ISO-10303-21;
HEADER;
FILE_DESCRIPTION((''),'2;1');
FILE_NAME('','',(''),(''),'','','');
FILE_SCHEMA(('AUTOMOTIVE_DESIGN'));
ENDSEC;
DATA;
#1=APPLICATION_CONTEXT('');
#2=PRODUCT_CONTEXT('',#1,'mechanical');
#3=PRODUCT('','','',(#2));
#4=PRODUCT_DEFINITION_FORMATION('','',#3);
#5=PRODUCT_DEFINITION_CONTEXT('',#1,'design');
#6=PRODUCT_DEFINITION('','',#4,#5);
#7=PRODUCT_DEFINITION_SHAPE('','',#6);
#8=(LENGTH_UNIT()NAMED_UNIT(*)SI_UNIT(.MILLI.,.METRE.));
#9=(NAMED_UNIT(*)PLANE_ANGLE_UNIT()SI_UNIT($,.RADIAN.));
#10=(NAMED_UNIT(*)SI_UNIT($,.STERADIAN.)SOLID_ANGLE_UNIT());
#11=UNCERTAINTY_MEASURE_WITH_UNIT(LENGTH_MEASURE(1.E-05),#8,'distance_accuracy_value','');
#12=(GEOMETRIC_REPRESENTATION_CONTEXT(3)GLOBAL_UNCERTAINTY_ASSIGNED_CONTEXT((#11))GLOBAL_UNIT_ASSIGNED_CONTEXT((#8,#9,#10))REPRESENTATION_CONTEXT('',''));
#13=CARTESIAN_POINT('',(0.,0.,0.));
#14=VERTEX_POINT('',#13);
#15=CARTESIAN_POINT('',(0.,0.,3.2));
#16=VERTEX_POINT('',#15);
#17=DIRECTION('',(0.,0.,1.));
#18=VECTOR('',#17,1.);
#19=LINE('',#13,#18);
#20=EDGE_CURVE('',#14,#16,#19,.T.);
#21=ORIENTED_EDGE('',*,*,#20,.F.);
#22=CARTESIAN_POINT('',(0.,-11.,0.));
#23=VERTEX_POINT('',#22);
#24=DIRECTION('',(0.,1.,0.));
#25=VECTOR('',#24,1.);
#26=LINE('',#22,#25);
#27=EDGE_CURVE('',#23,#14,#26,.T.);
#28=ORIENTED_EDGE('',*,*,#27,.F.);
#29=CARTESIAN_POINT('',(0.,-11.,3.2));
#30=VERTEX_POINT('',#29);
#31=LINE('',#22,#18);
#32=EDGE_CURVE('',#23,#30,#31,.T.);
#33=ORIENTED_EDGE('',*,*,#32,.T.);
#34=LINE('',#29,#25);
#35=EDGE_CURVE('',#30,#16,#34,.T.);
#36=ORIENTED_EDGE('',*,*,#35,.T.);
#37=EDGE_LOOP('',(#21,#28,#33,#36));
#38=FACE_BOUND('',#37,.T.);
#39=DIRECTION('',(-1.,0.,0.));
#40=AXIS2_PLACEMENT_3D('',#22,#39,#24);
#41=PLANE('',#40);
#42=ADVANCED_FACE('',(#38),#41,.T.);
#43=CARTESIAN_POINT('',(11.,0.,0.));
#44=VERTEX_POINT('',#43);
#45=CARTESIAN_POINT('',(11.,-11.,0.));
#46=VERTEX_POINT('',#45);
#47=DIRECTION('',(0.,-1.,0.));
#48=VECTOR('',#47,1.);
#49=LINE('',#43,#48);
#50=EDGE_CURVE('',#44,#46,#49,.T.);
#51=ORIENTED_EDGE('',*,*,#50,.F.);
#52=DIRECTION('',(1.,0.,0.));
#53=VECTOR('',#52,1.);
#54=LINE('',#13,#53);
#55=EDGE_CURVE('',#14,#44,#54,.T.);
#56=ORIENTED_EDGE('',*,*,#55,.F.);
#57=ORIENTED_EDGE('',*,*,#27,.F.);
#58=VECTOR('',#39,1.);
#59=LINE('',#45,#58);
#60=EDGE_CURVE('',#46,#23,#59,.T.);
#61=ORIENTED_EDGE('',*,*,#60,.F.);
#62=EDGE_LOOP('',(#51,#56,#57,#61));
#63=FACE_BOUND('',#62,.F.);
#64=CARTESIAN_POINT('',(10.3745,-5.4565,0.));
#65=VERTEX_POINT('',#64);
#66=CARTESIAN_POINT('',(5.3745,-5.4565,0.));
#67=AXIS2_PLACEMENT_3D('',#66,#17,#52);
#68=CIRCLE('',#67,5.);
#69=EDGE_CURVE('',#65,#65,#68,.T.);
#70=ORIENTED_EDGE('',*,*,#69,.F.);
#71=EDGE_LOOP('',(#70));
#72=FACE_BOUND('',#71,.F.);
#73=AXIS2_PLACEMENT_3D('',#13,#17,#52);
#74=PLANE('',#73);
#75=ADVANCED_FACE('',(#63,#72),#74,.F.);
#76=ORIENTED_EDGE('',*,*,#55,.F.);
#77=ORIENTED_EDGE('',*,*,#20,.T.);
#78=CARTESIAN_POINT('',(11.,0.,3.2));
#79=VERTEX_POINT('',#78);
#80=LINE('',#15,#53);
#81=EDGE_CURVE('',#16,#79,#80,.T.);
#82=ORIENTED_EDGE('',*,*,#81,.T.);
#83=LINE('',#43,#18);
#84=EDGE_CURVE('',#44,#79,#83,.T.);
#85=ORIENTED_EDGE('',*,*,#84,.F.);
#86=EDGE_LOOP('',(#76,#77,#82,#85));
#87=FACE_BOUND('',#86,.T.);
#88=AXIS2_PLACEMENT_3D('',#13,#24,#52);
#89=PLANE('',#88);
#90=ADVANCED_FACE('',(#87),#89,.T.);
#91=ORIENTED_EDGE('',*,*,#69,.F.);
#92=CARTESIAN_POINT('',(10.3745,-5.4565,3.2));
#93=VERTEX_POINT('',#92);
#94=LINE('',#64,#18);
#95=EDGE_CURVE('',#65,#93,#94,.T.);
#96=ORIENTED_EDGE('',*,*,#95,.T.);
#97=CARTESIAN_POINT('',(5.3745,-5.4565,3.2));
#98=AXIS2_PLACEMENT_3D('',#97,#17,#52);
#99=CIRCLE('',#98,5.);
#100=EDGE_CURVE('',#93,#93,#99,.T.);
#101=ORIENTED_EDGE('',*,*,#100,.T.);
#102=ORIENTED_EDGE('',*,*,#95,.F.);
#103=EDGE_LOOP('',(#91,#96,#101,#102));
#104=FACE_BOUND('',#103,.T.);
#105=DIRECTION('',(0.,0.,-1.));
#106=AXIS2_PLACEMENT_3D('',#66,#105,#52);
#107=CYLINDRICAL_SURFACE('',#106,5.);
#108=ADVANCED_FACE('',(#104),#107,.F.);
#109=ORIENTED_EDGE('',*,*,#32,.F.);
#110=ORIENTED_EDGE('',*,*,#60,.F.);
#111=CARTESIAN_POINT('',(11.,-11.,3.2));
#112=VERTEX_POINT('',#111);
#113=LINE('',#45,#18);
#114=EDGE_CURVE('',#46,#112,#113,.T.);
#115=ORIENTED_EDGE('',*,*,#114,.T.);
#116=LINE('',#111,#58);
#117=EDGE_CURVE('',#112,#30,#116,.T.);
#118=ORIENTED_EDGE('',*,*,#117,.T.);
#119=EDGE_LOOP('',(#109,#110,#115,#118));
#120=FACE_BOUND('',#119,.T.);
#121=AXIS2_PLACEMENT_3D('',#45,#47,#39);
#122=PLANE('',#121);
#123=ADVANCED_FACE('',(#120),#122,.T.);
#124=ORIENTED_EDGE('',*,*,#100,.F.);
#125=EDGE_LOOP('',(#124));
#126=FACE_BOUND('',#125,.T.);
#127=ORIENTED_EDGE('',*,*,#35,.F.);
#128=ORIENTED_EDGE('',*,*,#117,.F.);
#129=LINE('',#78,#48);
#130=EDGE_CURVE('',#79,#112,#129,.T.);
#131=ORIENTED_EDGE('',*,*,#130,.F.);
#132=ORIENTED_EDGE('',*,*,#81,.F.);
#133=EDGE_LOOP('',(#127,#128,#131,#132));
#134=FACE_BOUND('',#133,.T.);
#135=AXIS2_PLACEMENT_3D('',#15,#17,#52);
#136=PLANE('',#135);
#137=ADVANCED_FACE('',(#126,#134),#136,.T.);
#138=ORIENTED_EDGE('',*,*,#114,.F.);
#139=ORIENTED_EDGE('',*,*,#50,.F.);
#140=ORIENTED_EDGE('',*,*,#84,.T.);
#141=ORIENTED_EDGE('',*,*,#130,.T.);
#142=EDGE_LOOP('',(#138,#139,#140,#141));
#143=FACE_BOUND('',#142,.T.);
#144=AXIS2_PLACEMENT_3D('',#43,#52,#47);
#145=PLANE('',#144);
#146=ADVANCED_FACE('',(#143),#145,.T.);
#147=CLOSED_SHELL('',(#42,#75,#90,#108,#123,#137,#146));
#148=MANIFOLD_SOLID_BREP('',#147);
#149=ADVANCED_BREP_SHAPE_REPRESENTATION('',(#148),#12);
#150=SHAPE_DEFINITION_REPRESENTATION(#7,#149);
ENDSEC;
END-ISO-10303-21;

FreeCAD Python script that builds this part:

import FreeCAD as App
import Part
import Sketcher
from FreeCAD import Vector

doc = App.newDocument("Part")
params = doc.addObject("Spreadsheet::Sheet", "Params")
for row, (alias, value) in enumerate([
    ("sketch1_diameter", "10 mm"),
    ("sketch1_width", "11 mm"),
    ("pad1_length", "3.2 mm"),
], start=1):
    params.set(f"A{row}", alias)
    params.set(f"B{row}", "=" + value)
    params.setAlias(f"B{row}", alias)

body = doc.addObject("PartDesign::Body", "Body")

# Sketch on XY plane
sketch1 = body.newObject("Sketcher::SketchObject", "Sketch")
sketch1.AttachmentSupport = (doc.getObject("XY_Plane"), [""])
sketch1.MapMode = "FlatFace"
sketch1.addGeometry([
    Part.LineSegment(Vector(11, 0, 0), Vector(0, 0, 0)),  # 0
    Part.LineSegment(Vector(0, 0, 0), Vector(0, -11, 0)),  # 1
    Part.LineSegment(Vector(0, -11, 0), Vector(11, -11, 0)),  # 2
    Part.LineSegment(Vector(11, -11, 0), Vector(11, 0, 0)),  # 3
    Part.Circle(Vector(5, -5, 0), Vector(0, 0, 1), 5),  # 4
], False)
sketch1.addConstraint([
    Sketcher.Constraint("Coincident", 0, 2, 1, 1),
    Sketcher.Constraint("Coincident", 1, 2, 2, 1),
    Sketcher.Constraint("Coincident", 2, 2, 3, 1),
    Sketcher.Constraint("Coincident", 3, 2, 0, 1),
    Sketcher.Constraint("Horizontal", 0),
    Sketcher.Constraint("Vertical", 1),
    Sketcher.Constraint("Horizontal", 2),
    Sketcher.Constraint("Vertical", 3),
    Sketcher.Constraint("Coincident", 0, 2, -1, 1),
    Sketcher.Constraint("Equal", 2, 1),
    Sketcher.Constraint("Diameter", 4, 10.0),
    Sketcher.Constraint("DistanceX", 0, 2, 0, 1, 11.0),
    Sketcher.Constraint("DistanceX", -1, 1, 4, 3, 5.3745),
    Sketcher.Constraint("DistanceY", 4, 3, -1, 1, 5.4565),
])
sketch1.setExpression("Constraints[10]", "Params.sketch1_diameter")
sketch1.setExpression("Constraints[11]", "Params.sketch1_width")
pad1 = body.newObject("PartDesign::Pad", "Pad")
pad1.Profile = sketch1
pad1.setExpression("Length", "Params.pad1_length")

doc.recompute()
